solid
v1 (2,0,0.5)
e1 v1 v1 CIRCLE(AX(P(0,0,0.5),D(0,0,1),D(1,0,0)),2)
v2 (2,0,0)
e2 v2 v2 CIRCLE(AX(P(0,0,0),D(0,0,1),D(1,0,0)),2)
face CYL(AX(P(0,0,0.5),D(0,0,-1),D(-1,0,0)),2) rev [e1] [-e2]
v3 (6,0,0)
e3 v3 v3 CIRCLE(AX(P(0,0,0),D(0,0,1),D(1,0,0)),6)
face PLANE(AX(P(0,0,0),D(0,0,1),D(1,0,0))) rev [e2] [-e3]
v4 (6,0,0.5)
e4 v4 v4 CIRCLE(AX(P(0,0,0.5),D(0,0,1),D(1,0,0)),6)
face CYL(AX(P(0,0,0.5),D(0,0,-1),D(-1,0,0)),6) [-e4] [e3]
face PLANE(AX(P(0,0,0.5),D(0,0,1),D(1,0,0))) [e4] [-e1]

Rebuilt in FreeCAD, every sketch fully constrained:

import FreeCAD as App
import Part
import Sketcher

doc = App.newDocument("Part")
body = doc.addObject("PartDesign::Body", "Body")

# Sketch on XY plane
sketch1 = body.newObject("Sketcher::SketchObject", "Sketch")
sketch1.AttachmentSupport = (doc.getObject("XY_Plane"), [""])
sketch1.MapMode = "FlatFace"
sketch1.addGeometry(Part.Circle(App.Vector(0, 0, 0), App.Vector(0, 0, 1), 6), False)
sketch1.addGeometry(Part.Circle(App.Vector(0, 0, 0), App.Vector(0, 0, 1), 2), False)
sketch1.addConstraint(Sketcher.Constraint("Coincident", 0, 3, -1, 1))
sketch1.addConstraint(Sketcher.Constraint("Coincident", 1, 3, -1, 1))
sketch1.addConstraint(Sketcher.Constraint("Diameter", 0, 12.0))
sketch1.addConstraint(Sketcher.Constraint("Diameter", 1, 4.0))
pad1 = body.newObject("PartDesign::Pad", "Pad")
pad1.Profile = sketch1
pad1.Length = 0.5

doc.recompute()
